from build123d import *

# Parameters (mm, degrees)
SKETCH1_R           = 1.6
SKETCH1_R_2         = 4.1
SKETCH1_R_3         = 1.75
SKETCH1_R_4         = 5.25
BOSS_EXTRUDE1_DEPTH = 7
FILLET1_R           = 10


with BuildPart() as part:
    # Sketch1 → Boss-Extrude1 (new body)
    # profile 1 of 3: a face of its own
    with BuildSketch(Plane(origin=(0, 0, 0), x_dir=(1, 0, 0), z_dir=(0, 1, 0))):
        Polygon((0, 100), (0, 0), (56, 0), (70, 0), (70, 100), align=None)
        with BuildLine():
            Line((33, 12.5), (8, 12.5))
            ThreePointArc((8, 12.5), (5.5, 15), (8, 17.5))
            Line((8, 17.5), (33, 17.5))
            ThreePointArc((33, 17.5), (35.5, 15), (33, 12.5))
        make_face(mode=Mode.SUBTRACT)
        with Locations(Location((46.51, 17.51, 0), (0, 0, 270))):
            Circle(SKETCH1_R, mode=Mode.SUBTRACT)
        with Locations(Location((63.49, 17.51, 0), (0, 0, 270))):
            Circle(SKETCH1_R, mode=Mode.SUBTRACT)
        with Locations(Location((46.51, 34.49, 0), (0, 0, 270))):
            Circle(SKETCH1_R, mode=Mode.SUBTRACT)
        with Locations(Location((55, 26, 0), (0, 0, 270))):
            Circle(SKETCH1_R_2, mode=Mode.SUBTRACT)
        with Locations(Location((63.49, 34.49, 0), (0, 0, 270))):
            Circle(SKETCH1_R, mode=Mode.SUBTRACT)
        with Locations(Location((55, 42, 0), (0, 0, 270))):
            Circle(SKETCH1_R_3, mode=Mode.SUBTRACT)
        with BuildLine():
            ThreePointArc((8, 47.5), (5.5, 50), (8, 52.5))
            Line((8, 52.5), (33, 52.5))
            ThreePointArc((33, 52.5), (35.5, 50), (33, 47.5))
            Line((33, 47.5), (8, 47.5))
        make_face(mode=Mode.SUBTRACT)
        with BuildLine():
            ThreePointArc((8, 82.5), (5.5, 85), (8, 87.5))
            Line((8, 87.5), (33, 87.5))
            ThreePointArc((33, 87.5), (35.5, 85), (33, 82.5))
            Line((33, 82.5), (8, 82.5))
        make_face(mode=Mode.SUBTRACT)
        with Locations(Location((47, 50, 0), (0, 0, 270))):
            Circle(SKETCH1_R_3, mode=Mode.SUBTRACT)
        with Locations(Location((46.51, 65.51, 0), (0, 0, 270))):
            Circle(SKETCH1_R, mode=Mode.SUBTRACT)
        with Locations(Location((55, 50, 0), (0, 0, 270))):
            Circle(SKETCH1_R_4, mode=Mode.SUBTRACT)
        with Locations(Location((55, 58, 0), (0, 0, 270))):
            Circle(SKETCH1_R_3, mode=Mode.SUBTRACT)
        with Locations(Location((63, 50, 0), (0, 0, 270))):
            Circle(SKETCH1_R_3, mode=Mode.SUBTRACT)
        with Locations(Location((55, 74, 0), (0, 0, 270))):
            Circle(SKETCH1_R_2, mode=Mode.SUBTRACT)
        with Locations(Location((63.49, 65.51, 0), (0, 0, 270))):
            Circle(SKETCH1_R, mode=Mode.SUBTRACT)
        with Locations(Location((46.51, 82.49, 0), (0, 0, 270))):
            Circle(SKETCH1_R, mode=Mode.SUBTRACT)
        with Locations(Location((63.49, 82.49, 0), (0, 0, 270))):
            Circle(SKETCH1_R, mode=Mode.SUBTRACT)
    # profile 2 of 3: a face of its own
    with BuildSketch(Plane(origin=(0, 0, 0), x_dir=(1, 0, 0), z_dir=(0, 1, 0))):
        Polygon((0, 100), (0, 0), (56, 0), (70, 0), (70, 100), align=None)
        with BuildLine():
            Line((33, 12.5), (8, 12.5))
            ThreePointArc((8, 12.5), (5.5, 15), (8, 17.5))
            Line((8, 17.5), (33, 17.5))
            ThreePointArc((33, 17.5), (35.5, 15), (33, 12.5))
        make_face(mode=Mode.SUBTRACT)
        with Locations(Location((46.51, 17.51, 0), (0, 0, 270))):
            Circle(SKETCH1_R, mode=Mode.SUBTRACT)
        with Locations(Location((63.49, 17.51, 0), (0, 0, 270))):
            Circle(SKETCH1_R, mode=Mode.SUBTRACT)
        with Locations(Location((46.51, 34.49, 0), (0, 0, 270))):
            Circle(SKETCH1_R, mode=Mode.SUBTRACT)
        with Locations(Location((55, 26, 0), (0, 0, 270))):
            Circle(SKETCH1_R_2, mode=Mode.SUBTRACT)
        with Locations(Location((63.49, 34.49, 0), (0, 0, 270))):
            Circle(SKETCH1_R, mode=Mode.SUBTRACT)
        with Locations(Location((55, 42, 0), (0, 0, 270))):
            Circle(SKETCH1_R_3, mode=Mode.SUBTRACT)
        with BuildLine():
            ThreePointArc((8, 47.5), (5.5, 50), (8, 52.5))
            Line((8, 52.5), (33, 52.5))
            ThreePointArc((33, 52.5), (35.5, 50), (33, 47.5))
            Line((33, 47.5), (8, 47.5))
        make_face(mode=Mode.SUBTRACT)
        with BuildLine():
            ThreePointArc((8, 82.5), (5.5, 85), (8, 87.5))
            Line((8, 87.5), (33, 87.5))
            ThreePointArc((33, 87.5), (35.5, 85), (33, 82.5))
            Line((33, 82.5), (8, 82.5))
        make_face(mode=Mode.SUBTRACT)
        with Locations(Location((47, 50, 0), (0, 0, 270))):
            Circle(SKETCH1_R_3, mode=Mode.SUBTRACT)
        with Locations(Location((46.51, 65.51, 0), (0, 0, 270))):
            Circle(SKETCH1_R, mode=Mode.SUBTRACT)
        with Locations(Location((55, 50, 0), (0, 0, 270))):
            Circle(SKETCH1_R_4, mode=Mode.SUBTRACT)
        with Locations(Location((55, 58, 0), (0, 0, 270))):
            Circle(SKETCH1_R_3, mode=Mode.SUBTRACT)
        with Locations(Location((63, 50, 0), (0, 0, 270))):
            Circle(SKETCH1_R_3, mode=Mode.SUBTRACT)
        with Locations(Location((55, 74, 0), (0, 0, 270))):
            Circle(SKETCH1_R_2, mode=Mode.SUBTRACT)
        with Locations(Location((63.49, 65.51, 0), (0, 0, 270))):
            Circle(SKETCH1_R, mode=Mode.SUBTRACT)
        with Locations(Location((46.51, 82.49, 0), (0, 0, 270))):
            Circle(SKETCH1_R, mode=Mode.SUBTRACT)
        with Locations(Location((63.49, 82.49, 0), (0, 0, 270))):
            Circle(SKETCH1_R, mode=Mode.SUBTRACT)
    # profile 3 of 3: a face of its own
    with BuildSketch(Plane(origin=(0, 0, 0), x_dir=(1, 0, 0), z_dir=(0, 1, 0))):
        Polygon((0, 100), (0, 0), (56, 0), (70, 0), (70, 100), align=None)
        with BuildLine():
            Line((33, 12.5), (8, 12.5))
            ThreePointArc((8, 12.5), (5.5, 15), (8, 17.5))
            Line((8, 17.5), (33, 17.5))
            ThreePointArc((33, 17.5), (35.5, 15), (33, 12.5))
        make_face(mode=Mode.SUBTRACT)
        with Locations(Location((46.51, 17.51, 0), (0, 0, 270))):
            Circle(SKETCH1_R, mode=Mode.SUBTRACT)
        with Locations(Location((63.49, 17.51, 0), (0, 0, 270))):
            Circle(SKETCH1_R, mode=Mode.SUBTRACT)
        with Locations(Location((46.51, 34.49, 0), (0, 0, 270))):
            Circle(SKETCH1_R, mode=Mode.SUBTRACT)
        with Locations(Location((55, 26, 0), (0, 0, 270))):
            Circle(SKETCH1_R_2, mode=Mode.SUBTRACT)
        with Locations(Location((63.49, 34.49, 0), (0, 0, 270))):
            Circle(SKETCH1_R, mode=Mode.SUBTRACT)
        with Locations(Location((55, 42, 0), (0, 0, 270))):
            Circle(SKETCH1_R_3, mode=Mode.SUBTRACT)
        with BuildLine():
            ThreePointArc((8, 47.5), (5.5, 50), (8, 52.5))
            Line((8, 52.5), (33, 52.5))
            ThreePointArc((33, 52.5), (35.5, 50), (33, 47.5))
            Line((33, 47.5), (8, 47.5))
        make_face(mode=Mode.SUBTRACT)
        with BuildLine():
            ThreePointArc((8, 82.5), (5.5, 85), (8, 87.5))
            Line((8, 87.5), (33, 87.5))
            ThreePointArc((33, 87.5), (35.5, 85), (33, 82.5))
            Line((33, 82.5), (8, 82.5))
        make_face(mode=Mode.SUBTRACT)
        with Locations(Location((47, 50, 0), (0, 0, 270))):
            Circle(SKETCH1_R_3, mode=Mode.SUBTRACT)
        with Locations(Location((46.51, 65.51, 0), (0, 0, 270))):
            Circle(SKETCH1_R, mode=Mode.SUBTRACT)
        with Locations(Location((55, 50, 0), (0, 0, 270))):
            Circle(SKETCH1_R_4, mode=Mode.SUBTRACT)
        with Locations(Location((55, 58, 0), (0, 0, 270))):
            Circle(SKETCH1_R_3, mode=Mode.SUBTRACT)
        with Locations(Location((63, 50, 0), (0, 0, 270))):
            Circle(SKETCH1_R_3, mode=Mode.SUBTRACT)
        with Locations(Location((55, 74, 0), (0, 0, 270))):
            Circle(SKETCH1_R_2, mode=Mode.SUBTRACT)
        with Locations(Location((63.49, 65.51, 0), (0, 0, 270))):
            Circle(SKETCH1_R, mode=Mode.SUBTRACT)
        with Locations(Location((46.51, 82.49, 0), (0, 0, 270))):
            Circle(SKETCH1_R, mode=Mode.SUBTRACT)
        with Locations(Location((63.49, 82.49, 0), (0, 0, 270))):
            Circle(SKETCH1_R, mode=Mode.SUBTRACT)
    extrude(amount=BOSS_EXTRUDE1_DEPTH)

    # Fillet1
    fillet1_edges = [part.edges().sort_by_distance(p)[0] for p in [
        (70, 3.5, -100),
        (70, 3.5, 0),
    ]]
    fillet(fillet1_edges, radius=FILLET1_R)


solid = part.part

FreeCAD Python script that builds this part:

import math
import FreeCAD as App
import Part
import Sketcher
Q = App.Units.Quantity


def edges_at(feature, points):
    """Names of the edges that pass closest to the given points."""
    edges = feature.Shape.Edges
    near = lambda p: min(range(len(edges)), key=lambda i: edges[i].distToShape(Part.Vertex(*p))[0])
    return sorted({f"Edge{near(p) + 1}" for p in points})


def add_polygon(sketch, points):
    """Adds a closed chain of lines whose ends are joined by coincident constraints."""
    first, n = sketch.GeometryCount, len(points)
    for a, b in zip(points, points[1:] + points[:1]):
        sketch.addGeometry(Part.LineSegment(App.Vector(*a, 0), App.Vector(*b, 0)), False)
    for i in range(n):
        sketch.addConstraint(Sketcher.Constraint("Coincident", first + i, 2, first + (i + 1) % n, 1))

doc = App.newDocument("Part")
body = doc.addObject("PartDesign::Body", "Body")

# Sketch on XZ plane
sketch1 = doc.addObject("Sketcher::SketchObject", "Sketch")
body.addObject(sketch1)
sketch1.AttachmentSupport = (doc.XZ_Plane, [""])
sketch1.MapMode = "FlatFace"
add_polygon(sketch1, [(0, -100), (0, 0), (70, 0), (70, -100)])  # lines 0-3
sketch1.addGeometry(Part.ArcOfCircle(Part.Circle(App.Vector(33, -15, 0), App.Vector(0, 0, 1), 2.5), math.radians(-90), math.radians(90)), False)  # 4
sketch1.addGeometry(Part.LineSegment(App.Vector(33, -12.5, 0), App.Vector(8, -12.5, 0)), False)  # 5
sketch1.addGeometry(Part.ArcOfCircle(Part.Circle(App.Vector(8, -15, 0), App.Vector(0, 0, 1), 2.5), math.radians(90), math.radians(270)), False)  # 6
sketch1.addGeometry(Part.LineSegment(App.Vector(8, -17.5, 0), App.Vector(33, -17.5, 0)), False)  # 7
sketch1.addGeometry(Part.Circle(App.Vector(46.5, -17.5, 0), App.Vector(0, 0, 1), 1.6), False)  # 8
sketch1.addGeometry(Part.Circle(App.Vector(63.5, -17.5, 0), App.Vector(0, 0, 1), 1.6), False)  # 9
sketch1.addGeometry(Part.Circle(App.Vector(55, -26, 0), App.Vector(0, 0, 1), 4.1), False)  # 10
sketch1.addGeometry(Part.Circle(App.Vector(46.5, -34.5, 0), App.Vector(0, 0, 1), 1.6), False)  # 11
sketch1.addGeometry(Part.Circle(App.Vector(63.5, -34.5, 0), App.Vector(0, 0, 1), 1.6), False)  # 12
sketch1.addGeometry(Part.Circle(App.Vector(55, -42, 0), App.Vector(0, 0, 1), 1.8), False)  # 13
sketch1.addGeometry(Part.LineSegment(App.Vector(33, -47.5, 0), App.Vector(8, -47.5, 0)), False)  # 14
sketch1.addGeometry(Part.ArcOfCircle(Part.Circle(App.Vector(8, -50, 0), App.Vector(0, 0, 1), 2.5), math.radians(90), math.radians(270)), False)  # 15
sketch1.addGeometry(Part.LineSegment(App.Vector(8, -52.5, 0), App.Vector(33, -52.5, 0)), False)  # 16
sketch1.addGeometry(Part.ArcOfCircle(Part.Circle(App.Vector(33, -50, 0), App.Vector(0, 0, 1), 2.5), math.radians(-90), math.radians(90)), False)  # 17
sketch1.addGeometry(Part.LineSegment(App.Vector(33, -82.5, 0), App.Vector(8, -82.5, 0)), False)  # 18
sketch1.addGeometry(Part.ArcOfCircle(Part.Circle(App.Vector(8, -85, 0), App.Vector(0, 0, 1), 2.5), math.radians(90), math.radians(270)), False)  # 19
sketch1.addGeometry(Part.LineSegment(App.Vector(8, -87.5, 0), App.Vector(33, -87.5, 0)), False)  # 20
sketch1.addGeometry(Part.ArcOfCircle(Part.Circle(App.Vector(33, -85, 0), App.Vector(0, 0, 1), 2.5), math.radians(-90), math.radians(90)), False)  # 21
sketch1.addGeometry(Part.Circle(App.Vector(47, -50, 0), App.Vector(0, 0, 1), 1.8), False)  # 22
sketch1.addGeometry(Part.Circle(App.Vector(46.5, -65.5, 0), App.Vector(0, 0, 1), 1.6), False)  # 23
sketch1.addGeometry(Part.Circle(App.Vector(55, -50, 0), App.Vector(0, 0, 1), 5.2), False)  # 24
sketch1.addGeometry(Part.Circle(App.Vector(55, -58, 0), App.Vector(0, 0, 1), 1.8), False)  # 25
sketch1.addGeometry(Part.Circle(App.Vector(63, -50, 0), App.Vector(0, 0, 1), 1.8), False)  # 26
sketch1.addGeometry(Part.Circle(App.Vector(63.5, -65.5, 0), App.Vector(0, 0, 1), 1.6), False)  # 27
sketch1.addGeometry(Part.Circle(App.Vector(46.5, -82.5, 0), App.Vector(0, 0, 1), 1.6), False)  # 28
sketch1.addGeometry(Part.Circle(App.Vector(55, -74, 0), App.Vector(0, 0, 1), 4.1), False)  # 29
sketch1.addGeometry(Part.Circle(App.Vector(63.5, -82.5, 0), App.Vector(0, 0, 1), 1.6), False)  # 30
sketch1.addConstraint(Sketcher.Constraint("Tangent", 4, 2, 5, 1))
sketch1.addConstraint(Sketcher.Constraint("Tangent", 5, 2, 6, 1))
sketch1.addConstraint(Sketcher.Constraint("Tangent", 6, 2, 7, 1))
sketch1.addConstraint(Sketcher.Constraint("Tangent", 7, 2, 4, 1))
sketch1.addConstraint(Sketcher.Constraint("Tangent", 14, 2, 15, 1))
sketch1.addConstraint(Sketcher.Constraint("Tangent", 15, 2, 16, 1))
sketch1.addConstraint(Sketcher.Constraint("Tangent", 16, 2, 17, 1))
sketch1.addConstraint(Sketcher.Constraint("Tangent", 17, 2, 14, 1))
sketch1.addConstraint(Sketcher.Constraint("Tangent", 18, 2, 19, 1))
sketch1.addConstraint(Sketcher.Constraint("Tangent", 19, 2, 20, 1))
sketch1.addConstraint(Sketcher.Constraint("Tangent", 20, 2, 21, 1))
sketch1.addConstraint(Sketcher.Constraint("Tangent", 21, 2, 18, 1))
sketch1.addConstraint(Sketcher.Constraint("Vertical", 0))
sketch1.addConstraint(Sketcher.Constraint("Horizontal", 1))
sketch1.addConstraint(Sketcher.Constraint("Vertical", 2))
sketch1.addConstraint(Sketcher.Constraint("Horizontal", 3))
sketch1.addConstraint(Sketcher.Constraint("Horizontal", 5))
sketch1.addConstraint(Sketcher.Constraint("Horizontal", 7))
sketch1.addConstraint(Sketcher.Constraint("Horizontal", 14))
sketch1.addConstraint(Sketcher.Constraint("Horizontal", 16))
sketch1.addConstraint(Sketcher.Constraint("Horizontal", 18))
sketch1.addConstraint(Sketcher.Constraint("Horizontal", 20))
sketch1.addConstraint(Sketcher.Constraint("Coincident", 0, 2, -1, 1))
sketch1.addConstraint(Sketcher.Constraint("Equal", 8, 9))
sketch1.addConstraint(Sketcher.Constraint("Equal", 9, 11))
sketch1.addConstraint(Sketcher.Constraint("Equal", 11, 12))
sketch1.addConstraint(Sketcher.Constraint("Equal", 6, 15))
sketch1.addConstraint(Sketcher.Constraint("Equal", 17, 19))
sketch1.addConstraint(Sketcher.Constraint("Equal", 13, 22))
sketch1.addConstraint(Sketcher.Constraint("Equal", 12, 23))
sketch1.addConstraint(Sketcher.Constraint("Equal", 22, 25))
sketch1.addConstraint(Sketcher.Constraint("Equal", 25, 26))
sketch1.addConstraint(Sketcher.Constraint("Equal", 23, 27))
sketch1.addConstraint(Sketcher.Constraint("Equal", 27, 28))
sketch1.addConstraint(Sketcher.Constraint("Equal", 10, 29))
sketch1.addConstraint(Sketcher.Constraint("Equal", 28, 30))
sketch1.addConstraint(Sketcher.Constraint("Horizontal", 8, 3, 9, 3))
sketch1.addConstraint(Sketcher.Constraint("Horizontal", 11, 3, 12, 3))
sketch1.addConstraint(Sketcher.Constraint("Horizontal", 17, 3, 22, 3))
sketch1.addConstraint(Sketcher.Constraint("Horizontal", 22, 3, 24, 3))
sketch1.addConstraint(Sketcher.Constraint("Horizontal", 24, 3, 26, 3))
sketch1.addConstraint(Sketcher.Constraint("Horizontal", 23, 3, 27, 3))
sketch1.addConstraint(Sketcher.Constraint("Horizontal", 28, 3, 30, 3))
sketch1.addConstraint(Sketcher.Constraint("Vertical", 8, 3, 11, 3))
sketch1.addConstraint(Sketcher.Constraint("Vertical", 9, 3, 12, 3))
sketch1.addConstraint(Sketcher.Constraint("Vertical", 10, 3, 13, 3))
sketch1.addConstraint(Sketcher.Constraint("Vertical", 6, 3, 15, 3))
sketch1.addConstraint(Sketcher.Constraint("Vertical", 4, 3, 17, 3))
sketch1.addConstraint(Sketcher.Constraint("Vertical", 15, 3, 19, 3))
sketch1.addConstraint(Sketcher.Constraint("Vertical", 17, 3, 21, 3))
sketch1.addConstraint(Sketcher.Constraint("Vertical", 11, 3, 23, 3))
sketch1.addConstraint(Sketcher.Constraint("Vertical", 13, 3, 24, 3))
sketch1.addConstraint(Sketcher.Constraint("Vertical", 24, 3, 25, 3))
sketch1.addConstraint(Sketcher.Constraint("Vertical", 12, 3, 27, 3))
sketch1.addConstraint(Sketcher.Constraint("Vertical", 23, 3, 28, 3))
sketch1.addConstraint(Sketcher.Constraint("Vertical", 25, 3, 29, 3))
sketch1.addConstraint(Sketcher.Constraint("Vertical", 27, 3, 30, 3))
sketch1.addConstraint(Sketcher.Constraint("Diameter", 8, Q("3.2 mm")))
sketch1.addConstraint(Sketcher.Constraint("Diameter", 10, Q("8.2 mm")))
sketch1.addConstraint(Sketcher.Constraint("Diameter", 13, Q("3.5 mm")))
sketch1.addConstraint(Sketcher.Constraint("Diameter", 24, Q("10.5 mm")))
sketch1.addConstraint(Sketcher.Constraint("Radius", 4, Q("2.5 mm")))
sketch1.addConstraint(Sketcher.Constraint("DistanceX", 1, 1, 1, 2, Q("70 mm")))
sketch1.addConstraint(Sketcher.Constraint("DistanceX", 5, 2, 5, 1, Q("25 mm")))
sketch1.addConstraint(Sketcher.Constraint("DistanceY", 0, 1, 0, 2, Q("100 mm")))
sketch1.addConstraint(Sketcher.Constraint("DistanceX", -1, 1, 4, 3, Q("33 mm")))
sketch1.addConstraint(Sketcher.Constraint("DistanceY", 4, 3, -1, 1, Q("15 mm")))
sketch1.addConstraint(Sketcher.Constraint("DistanceX", -1, 1, 10, 3, Q("55 mm")))
sketch1.addConstraint(Sketcher.Constraint("DistanceY", 10, 3, -1, 1, Q("26 mm")))
sketch1.addConstraint(Sketcher.Constraint("DistanceY", 13, 3, -1, 1, Q("42 mm")))
sketch1.addConstraint(Sketcher.Constraint("DistanceY", 15, 3, -1, 1, Q("50 mm")))
sketch1.addConstraint(Sketcher.Constraint("DistanceY", 19, 3, -1, 1, Q("85 mm")))
sketch1.addConstraint(Sketcher.Constraint("DistanceX", -1, 1, 22, 3, Q("47 mm")))
sketch1.addConstraint(Sketcher.Constraint("DistanceY", 25, 3, -1, 1, Q("58 mm")))
sketch1.addConstraint(Sketcher.Constraint("DistanceX", -1, 1, 26, 3, Q("63 mm")))
sketch1.addConstraint(Sketcher.Constraint("DistanceY", 29, 3, -1, 1, Q("74 mm")))
sketch1.addConstraint(Sketcher.Constraint("DistanceX", -1, 1, 8, 3, Q("46.51 mm")))
sketch1.addConstraint(Sketcher.Constraint("DistanceY", 8, 3, -1, 1, Q("17.51 mm")))
sketch1.addConstraint(Sketcher.Constraint("DistanceX", -1, 1, 9, 3, Q("63.49 mm")))
sketch1.addConstraint(Sketcher.Constraint("DistanceY", 11, 3, -1, 1, Q("34.49 mm")))
sketch1.addConstraint(Sketcher.Constraint("DistanceY", 23, 3, -1, 1, Q("65.51 mm")))
sketch1.addConstraint(Sketcher.Constraint("DistanceY", 28, 3, -1, 1, Q("82.49 mm")))
pad1 = doc.addObject("PartDesign::Pad", "Pad")
body.addObject(pad1)
pad1.Profile = sketch1
pad1.Length = 7
pad1.Reversed = True
doc.recompute()

fillet = doc.addObject("PartDesign::Fillet", "Fillet")
body.addObject(fillet)
fillet.Base = (pad1, edges_at(pad1, [(70, 3.5, -100), (70, 3.5, 0)]))
fillet.Radius = 10

doc.recompute()
